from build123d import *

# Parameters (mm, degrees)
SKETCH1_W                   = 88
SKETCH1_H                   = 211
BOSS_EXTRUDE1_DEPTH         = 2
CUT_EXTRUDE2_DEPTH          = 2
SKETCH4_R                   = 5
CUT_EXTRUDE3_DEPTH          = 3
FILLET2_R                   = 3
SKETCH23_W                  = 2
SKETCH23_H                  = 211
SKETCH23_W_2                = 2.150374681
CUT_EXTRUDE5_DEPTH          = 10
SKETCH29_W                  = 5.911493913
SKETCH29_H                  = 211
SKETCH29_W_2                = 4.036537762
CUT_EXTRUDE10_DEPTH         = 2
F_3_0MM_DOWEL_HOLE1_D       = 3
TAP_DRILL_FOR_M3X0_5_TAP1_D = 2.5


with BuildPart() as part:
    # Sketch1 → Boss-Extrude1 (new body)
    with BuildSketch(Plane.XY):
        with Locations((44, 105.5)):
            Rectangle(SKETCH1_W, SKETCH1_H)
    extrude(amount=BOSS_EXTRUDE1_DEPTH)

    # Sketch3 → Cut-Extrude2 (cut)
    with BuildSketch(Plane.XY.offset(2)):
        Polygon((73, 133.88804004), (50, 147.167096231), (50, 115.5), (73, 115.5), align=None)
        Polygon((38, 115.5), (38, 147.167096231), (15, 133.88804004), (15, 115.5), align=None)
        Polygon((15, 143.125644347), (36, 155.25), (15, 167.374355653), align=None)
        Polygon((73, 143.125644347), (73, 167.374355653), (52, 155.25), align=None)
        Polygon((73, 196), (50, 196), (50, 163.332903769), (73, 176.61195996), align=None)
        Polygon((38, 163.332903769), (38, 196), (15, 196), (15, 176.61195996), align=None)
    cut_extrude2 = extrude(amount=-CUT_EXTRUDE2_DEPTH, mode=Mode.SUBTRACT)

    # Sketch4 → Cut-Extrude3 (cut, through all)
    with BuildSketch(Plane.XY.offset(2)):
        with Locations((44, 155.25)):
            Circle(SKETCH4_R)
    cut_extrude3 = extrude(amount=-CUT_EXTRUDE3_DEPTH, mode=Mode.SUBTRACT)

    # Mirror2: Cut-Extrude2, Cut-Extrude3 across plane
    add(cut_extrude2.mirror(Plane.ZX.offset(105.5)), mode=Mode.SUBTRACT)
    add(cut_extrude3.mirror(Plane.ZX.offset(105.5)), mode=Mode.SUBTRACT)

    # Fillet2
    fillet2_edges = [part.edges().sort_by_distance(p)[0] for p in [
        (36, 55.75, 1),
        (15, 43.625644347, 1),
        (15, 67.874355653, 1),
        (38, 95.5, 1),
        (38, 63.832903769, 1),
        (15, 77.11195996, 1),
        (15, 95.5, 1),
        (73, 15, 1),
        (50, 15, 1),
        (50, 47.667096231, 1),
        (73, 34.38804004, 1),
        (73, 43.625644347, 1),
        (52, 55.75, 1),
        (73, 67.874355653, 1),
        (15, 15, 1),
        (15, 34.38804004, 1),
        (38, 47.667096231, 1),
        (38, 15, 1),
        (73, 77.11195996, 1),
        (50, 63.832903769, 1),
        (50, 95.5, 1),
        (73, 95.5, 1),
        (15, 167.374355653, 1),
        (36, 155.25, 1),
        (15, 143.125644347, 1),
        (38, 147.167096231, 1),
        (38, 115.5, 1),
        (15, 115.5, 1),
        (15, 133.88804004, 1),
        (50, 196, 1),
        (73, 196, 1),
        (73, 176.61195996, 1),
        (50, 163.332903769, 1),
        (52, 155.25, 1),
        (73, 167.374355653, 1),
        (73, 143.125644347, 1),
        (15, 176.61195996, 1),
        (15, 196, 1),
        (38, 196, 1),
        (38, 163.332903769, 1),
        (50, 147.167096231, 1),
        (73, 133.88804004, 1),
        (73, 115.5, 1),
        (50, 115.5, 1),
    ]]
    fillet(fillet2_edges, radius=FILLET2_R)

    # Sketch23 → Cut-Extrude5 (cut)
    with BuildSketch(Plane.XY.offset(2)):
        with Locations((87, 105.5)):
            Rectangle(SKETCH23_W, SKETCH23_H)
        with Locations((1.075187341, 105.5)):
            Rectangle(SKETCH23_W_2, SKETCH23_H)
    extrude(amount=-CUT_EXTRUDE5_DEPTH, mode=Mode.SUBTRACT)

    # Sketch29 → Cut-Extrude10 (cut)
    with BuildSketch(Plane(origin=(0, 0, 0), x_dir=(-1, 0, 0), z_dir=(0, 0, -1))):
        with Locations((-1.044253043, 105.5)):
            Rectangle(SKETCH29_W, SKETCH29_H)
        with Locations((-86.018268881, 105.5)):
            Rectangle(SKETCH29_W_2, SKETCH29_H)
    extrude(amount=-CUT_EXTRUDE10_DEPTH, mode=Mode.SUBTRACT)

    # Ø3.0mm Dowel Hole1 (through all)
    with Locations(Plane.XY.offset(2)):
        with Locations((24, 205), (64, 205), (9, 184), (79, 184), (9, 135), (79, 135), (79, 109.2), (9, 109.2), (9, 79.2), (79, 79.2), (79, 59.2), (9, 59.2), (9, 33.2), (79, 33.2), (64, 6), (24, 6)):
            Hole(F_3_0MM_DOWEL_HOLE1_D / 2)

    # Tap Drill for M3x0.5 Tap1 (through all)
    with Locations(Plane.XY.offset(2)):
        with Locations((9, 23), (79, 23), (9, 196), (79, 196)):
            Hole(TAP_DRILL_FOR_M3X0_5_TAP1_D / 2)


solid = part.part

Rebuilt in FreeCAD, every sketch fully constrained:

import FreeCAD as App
import Part
import Sketcher
from FreeCAD import Vector
Q = App.Units.Quantity


def edges_at(feature, points):
    """Names of the edges that pass closest to the given points."""
    edges = feature.Shape.Edges
    near = lambda p: min(range(len(edges)), key=lambda i: edges[i].distToShape(Part.Vertex(*p))[0])
    return sorted({f"Edge{near(p) + 1}" for p in points})

doc = App.newDocument("Part")
body = doc.addObject("PartDesign::Body", "Body")

# Sketch on XY plane
sketch1 = body.newObject("Sketcher::SketchObject", "Sketch")
sketch1.AttachmentSupport = (doc.getObject("XY_Plane"), [""])
sketch1.MapMode = "FlatFace"
sketch1.addGeometry(Part.LineSegment(Vector(0, 211, 0), Vector(0, 0, 0)), False)
sketch1.addGeometry(Part.LineSegment(Vector(0, 0, 0), Vector(88, 0, 0)), False)
sketch1.addGeometry(Part.LineSegment(Vector(88, 0, 0), Vector(88, 211, 0)), False)
sketch1.addGeometry(Part.LineSegment(Vector(88, 211, 0), Vector(0, 211, 0)), False)
sketch1.addConstraint(Sketcher.Constraint("Coincident", 0, 2, 1, 1))
sketch1.addConstraint(Sketcher.Constraint("Coincident", 1, 2, 2, 1))
sketch1.addConstraint(Sketcher.Constraint("Coincident", 2, 2, 3, 1))
sketch1.addConstraint(Sketcher.Constraint("Coincident", 3, 2, 0, 1))
sketch1.addConstraint(Sketcher.Constraint("Vertical", 0))
sketch1.addConstraint(Sketcher.Constraint("Horizontal", 1))
sketch1.addConstraint(Sketcher.Constraint("Vertical", 2))
sketch1.addConstraint(Sketcher.Constraint("Horizontal", 3))
sketch1.addConstraint(Sketcher.Constraint("Coincident", 0, 2, -1, 1))
sketch1.addConstraint(Sketcher.Constraint("DistanceX", 1, 1, 1, 2, Q("88 mm")))
sketch1.addConstraint(Sketcher.Constraint("DistanceY", 0, 2, 0, 1, Q("211 mm")))
pad1 = body.newObject("PartDesign::Pad", "Pad")
pad1.Profile = sketch1
pad1.Length = 2

# Sketch on XY plane
sketch2 = body.newObject("Sketcher::SketchObject", "Sketch001")
sketch2.AttachmentSupport = (doc.getObject("XY_Plane"), [""])
sketch2.MapMode = "FlatFace"
sketch2.AttachmentOffset = App.Placement(Vector(0, 0, 2), App.Rotation())
sketch2.addGeometry(Part.LineSegment(Vector(73, 133.88804, 0), Vector(50, 147.167096, 0)), False)
sketch2.addGeometry(Part.LineSegment(Vector(50, 147.167096, 0), Vector(50, 115.5, 0)), False)
sketch2.addGeometry(Part.LineSegment(Vector(50, 115.5, 0), Vector(73, 115.5, 0)), False)
sketch2.addGeometry(Part.LineSegment(Vector(73, 115.5, 0), Vector(73, 133.88804, 0)), False)
sketch2.addGeometry(Part.LineSegment(Vector(38, 115.5, 0), Vector(38, 147.167096, 0)), False)
sketch2.addGeometry(Part.LineSegment(Vector(38, 147.167096, 0), Vector(15, 133.88804, 0)), False)
sketch2.addGeometry(Part.LineSegment(Vector(15, 133.88804, 0), Vector(15, 115.5, 0)), False)
sketch2.addGeometry(Part.LineSegment(Vector(15, 115.5, 0), Vector(38, 115.5, 0)), False)
sketch2.addGeometry(Part.LineSegment(Vector(15, 143.125644, 0), Vector(36, 155.25, 0)), False)
sketch2.addGeometry(Part.LineSegment(Vector(36, 155.25, 0), Vector(15, 167.374356, 0)), False)
sketch2.addGeometry(Part.LineSegment(Vector(15, 167.374356, 0), Vector(15, 143.125644, 0)), False)
sketch2.addGeometry(Part.LineSegment(Vector(73, 143.125644, 0), Vector(73, 167.374356, 0)), False)
sketch2.addGeometry(Part.LineSegment(Vector(73, 167.374356, 0), Vector(52, 155.25, 0)), False)
sketch2.addGeometry(Part.LineSegment(Vector(52, 155.25, 0), Vector(73, 143.125644, 0)), False)
sketch2.addGeometry(Part.LineSegment(Vector(73, 196, 0), Vector(50, 196, 0)), False)
sketch2.addGeometry(Part.LineSegment(Vector(50, 196, 0), Vector(50, 163.332904, 0)), False)
sketch2.addGeometry(Part.LineSegment(Vector(50, 163.332904, 0), Vector(73, 176.61196, 0)), False)
sketch2.addGeometry(Part.LineSegment(Vector(73, 176.61196, 0), Vector(73, 196, 0)), False)
sketch2.addGeometry(Part.LineSegment(Vector(38, 163.332904, 0), Vector(38, 196, 0)), False)
sketch2.addGeometry(Part.LineSegment(Vector(38, 196, 0), Vector(15, 196, 0)), False)
sketch2.addGeometry(Part.LineSegment(Vector(15, 196, 0), Vector(15, 176.61196, 0)), False)
sketch2.addGeometry(Part.LineSegment(Vector(15, 176.61196, 0), Vector(38, 163.332904, 0)), False)
sketch2.addConstraint(Sketcher.Constraint("Coincident", 0, 2, 1, 1))
sketch2.addConstraint(Sketcher.Constraint("Coincident", 1, 2, 2, 1))
sketch2.addConstraint(Sketcher.Constraint("Coincident", 2, 2, 3, 1))
sketch2.addConstraint(Sketcher.Constraint("Coincident", 3, 2, 0, 1))
sketch2.addConstraint(Sketcher.Constraint("Coincident", 4, 2, 5, 1))
sketch2.addConstraint(Sketcher.Constraint("Coincident", 5, 2, 6, 1))
sketch2.addConstraint(Sketcher.Constraint("Coincident", 6, 2, 7, 1))
sketch2.addConstraint(Sketcher.Constraint("Coincident", 7, 2, 4, 1))
sketch2.addConstraint(Sketcher.Constraint("Coincident", 8, 2, 9, 1))
sketch2.addConstraint(Sketcher.Constraint("Coincident", 9, 2, 10, 1))
sketch2.addConstraint(Sketcher.Constraint("Coincident", 10, 2, 8, 1))
sketch2.addConstraint(Sketcher.Constraint("Coincident", 11, 2, 12, 1))
sketch2.addConstraint(Sketcher.Constraint("Coincident", 12, 2, 13, 1))
sketch2.addConstraint(Sketcher.Constraint("Coincident", 13, 2, 11, 1))
sketch2.addConstraint(Sketcher.Constraint("Coincident", 14, 2, 15, 1))
sketch2.addConstraint(Sketcher.Constraint("Coincident", 15, 2, 16, 1))
sketch2.addConstraint(Sketcher.Constraint("Coincident", 16, 2, 17, 1))
sketch2.addConstraint(Sketcher.Constraint("Coincident", 17, 2, 14, 1))
sketch2.addConstraint(Sketcher.Constraint("Coincident", 18, 2, 19, 1))
sketch2.addConstraint(Sketcher.Constraint("Coincident", 19, 2, 20, 1))
sketch2.addConstraint(Sketcher.Constraint("Coincident", 20, 2, 21, 1))
sketch2.addConstraint(Sketcher.Constraint("Coincident", 21, 2, 18, 1))
sketch2.addConstraint(Sketcher.Constraint("Vertical", 1))
sketch2.addConstraint(Sketcher.Constraint("Horizontal", 2))
sketch2.addConstraint(Sketcher.Constraint("Vertical", 3))
sketch2.addConstraint(Sketcher.Constraint("Vertical", 4))
sketch2.addConstraint(Sketcher.Constraint("Vertical", 6))
sketch2.addConstraint(Sketcher.Constraint("Horizontal", 7))
sketch2.addConstraint(Sketcher.Constraint("Vertical", 10))
sketch2.addConstraint(Sketcher.Constraint("Vertical", 11))
sketch2.addConstraint(Sketcher.Constraint("Horizontal", 14))
sketch2.addConstraint(Sketcher.Constraint("Vertical", 15))
sketch2.addConstraint(Sketcher.Constraint("Vertical", 17))
sketch2.addConstraint(Sketcher.Constraint("Vertical", 18))
sketch2.addConstraint(Sketcher.Constraint("Horizontal", 19))
sketch2.addConstraint(Sketcher.Constraint("Vertical", 20))
sketch2.addConstraint(Sketcher.Constraint("Parallel", 5, 8))
sketch2.addConstraint(Sketcher.Constraint("Parallel", 0, 9))
sketch2.addConstraint(Sketcher.Constraint("Parallel", 8, 12))
sketch2.addConstraint(Sketcher.Constraint("Parallel", 9, 13))
sketch2.addConstraint(Sketcher.Constraint("Parallel", 12, 16))
sketch2.addConstraint(Sketcher.Constraint("Parallel", 13, 21))
sketch2.addConstraint(Sketcher.Constraint("Horizontal", 0, 2, 4, 2))
sketch2.addConstraint(Sketcher.Constraint("Horizontal", 3, 2, 5, 2))
sketch2.addConstraint(Sketcher.Constraint("Horizontal", 2, 2, 6, 2))
sketch2.addConstraint(Sketcher.Constraint("Horizontal", 9, 2, 11, 2))
sketch2.addConstraint(Sketcher.Constraint("Horizontal", 8, 2, 12, 2))
sketch2.addConstraint(Sketcher.Constraint("Horizontal", 10, 2, 13, 2))
sketch2.addConstraint(Sketcher.Constraint("Horizontal", 17, 2, 18, 2))
sketch2.addConstraint(Sketcher.Constraint("Horizontal", 16, 2, 20, 2))
sketch2.addConstraint(Sketcher.Constraint("Horizontal", 15, 2, 21, 2))
sketch2.addConstraint(Sketcher.Constraint("Vertical", 6, 2, 9, 2))
sketch2.addConstraint(Sketcher.Constraint("Vertical", 3, 2, 11, 2))
sketch2.addConstraint(Sketcher.Constraint("Vertical", 1, 2, 14, 2))
sketch2.addConstraint(Sketcher.Constraint("Vertical", 13, 2, 16, 2))
sketch2.addConstraint(Sketcher.Constraint("Vertical", 7, 2, 18, 2))
sketch2.addConstraint(Sketcher.Constraint("DistanceX", 2, 1, 2, 2, Q("23 mm")))
sketch2.addConstraint(Sketcher.Constraint("Angle", 0, Q("150 deg")))
sketch2.addConstraint(Sketcher.Constraint("DistanceX", -1, 1, 0, 2, Q("50 mm")))
sketch2.addConstraint(Sketcher.Constraint("DistanceX", -1, 1, 4, 2, Q("38 mm")))
sketch2.addConstraint(Sketcher.Constraint("DistanceX", -1, 1, 8, 2, Q("36 mm")))
sketch2.addConstraint(Sketcher.Constraint("DistanceY", -1, 1, 14, 2, Q("196 mm")))
sketch2.addConstraint(Sketcher.Constraint("DistanceY", -1, 1, 1, 2, Q("115.5 mm")))
sketch2.addConstraint(Sketcher.Constraint("DistanceY", -1, 1, 8, 2, Q("155.25 mm")))
sketch2.addConstraint(Sketcher.Constraint("DistanceY", 3, 1, 3, 2, Q("18.38804 mm")))
sketch2.addConstraint(Sketcher.Constraint("DistanceY", 17, 1, 17, 2, Q("19.38804 mm")))
pocket1 = body.newObject("PartDesign::Pocket", "Pocket")
pocket1.Profile = sketch2
pocket1.Length = 2

# Sketch on XY plane
sketch3 = body.newObject("Sketcher::SketchObject", "Sketch002")
sketch3.AttachmentSupport = (doc.getObject("XY_Plane"), [""])
sketch3.MapMode = "FlatFace"
sketch3.AttachmentOffset = App.Placement(Vector(0, 0, 2), App.Rotation())
sketch3.addGeometry(Part.Circle(Vector(44, 155.25, 0), Vector(0, 0, 1), 5), False)
sketch3.addConstraint(Sketcher.Constraint("Diameter", 0, Q("10 mm")))
sketch3.addConstraint(Sketcher.Constraint("DistanceX", -1, 1, 0, 3, Q("44 mm")))
sketch3.addConstraint(Sketcher.Constraint("DistanceY", -1, 1, 0, 3, Q("155.25 mm")))
pocket2 = body.newObject("PartDesign::Pocket", "Pocket001")
pocket2.Profile = sketch3
pocket2.Type = "ThroughAll"
doc.recompute()

datumplane = body.newObject("PartDesign::Plane", "DatumPlane")
datumplane.AttachmentSupport = (doc.getObject("XZ_Plane"), [""])
datumplane.MapMode = "FlatFace"
datumplane.AttachmentOffset = App.Placement(Vector(0, 0, -105.5), App.Rotation())
mirrored = body.newObject("PartDesign::Mirrored", "Mirrored")
mirrored.Originals = [pocket1, pocket2]
mirrored.MirrorPlane = (datumplane, [""])
body.Tip = mirrored
doc.recompute()

fillet = body.newObject("PartDesign::Fillet", "Fillet")
fillet.Base = (mirrored, edges_at(mirrored, [
    (36, 55.75, 1),
    (15, 43.626, 1),
    (15, 67.874, 1),
    (38, 95.5, 1),
    (38, 63.833, 1),
    (15, 77.112, 1),
    (15, 95.5, 1),
    (73, 15, 1),
    (50, 15, 1),
    (50, 47.667, 1),
    (73, 34.388, 1),
    (73, 43.626, 1),
    (52, 55.75, 1),
    (73, 67.874, 1),
    (15, 15, 1),
    (15, 34.388, 1),
    (38, 47.667, 1),
    (38, 15, 1),
    (73, 77.112, 1),
    (50, 63.833, 1),
    (50, 95.5, 1),
    (73, 95.5, 1),
    (15, 167.374, 1),
    (36, 155.25, 1),
    (15, 143.126, 1),
    (38, 147.167, 1),
    (38, 115.5, 1),
    (15, 115.5, 1),
    (15, 133.888, 1),
    (50, 196, 1),
    (73, 196, 1),
    (73, 176.612, 1),
    (50, 163.333, 1),
    (52, 155.25, 1),
    (73, 167.374, 1),
    (73, 143.126, 1),
    (15, 176.612, 1),
    (15, 196, 1),
    (38, 196, 1),
    (38, 163.333, 1),
    (50, 147.167, 1),
    (73, 133.888, 1),
    (73, 115.5, 1),
    (50, 115.5, 1),
]))
fillet.Radius = 3

# Sketch on XY plane
sketch4 = body.newObject("Sketcher::SketchObject", "Sketch003")
sketch4.AttachmentSupport = (doc.getObject("XY_Plane"), [""])
sketch4.MapMode = "FlatFace"
sketch4.AttachmentOffset = App.Placement(Vector(0, 0, 2), App.Rotation())
sketch4.addGeometry(Part.LineSegment(Vector(86, 211, 0), Vector(86, 0, 0)), False)
sketch4.addGeometry(Part.LineSegment(Vector(86, 0, 0), Vector(88, 0, 0)), False)
sketch4.addGeometry(Part.LineSegment(Vector(88, 0, 0), Vector(88, 211, 0)), False)
sketch4.addGeometry(Part.LineSegment(Vector(88, 211, 0), Vector(86, 211, 0)), False)
sketch4.addGeometry(Part.LineSegment(Vector(0, 211, 0), Vector(0, 0, 0)), False)
sketch4.addGeometry(Part.LineSegment(Vector(0, 0, 0), Vector(2.150375, 0, 0)), False)
sketch4.addGeometry(Part.LineSegment(Vector(2.150375, 0, 0), Vector(2.150375, 211, 0)), False)
sketch4.addGeometry(Part.LineSegment(Vector(2.150375, 211, 0), Vector(0, 211, 0)), False)
sketch4.addConstraint(Sketcher.Constraint("Coincident", 0, 2, 1, 1))
sketch4.addConstraint(Sketcher.Constraint("Coincident", 1, 2, 2, 1))
sketch4.addConstraint(Sketcher.Constraint("Coincident", 2, 2, 3, 1))
sketch4.addConstraint(Sketcher.Constraint("Coincident", 3, 2, 0, 1))
sketch4.addConstraint(Sketcher.Constraint("Coincident", 4, 2, 5, 1))
sketch4.addConstraint(Sketcher.Constraint("Coincident", 5, 2, 6, 1))
sketch4.addConstraint(Sketcher.Constraint("Coincident", 6, 2, 7, 1))
sketch4.addConstraint(Sketcher.Constraint("Coincident", 7, 2, 4, 1))
sketch4.addConstraint(Sketcher.Constraint("Vertical", 0))
sketch4.addConstraint(Sketcher.Constraint("Horizontal", 1))
sketch4.addConstraint(Sketcher.Constraint("Vertical", 2))
sketch4.addConstraint(Sketcher.Constraint("Horizontal", 3))
sketch4.addConstraint(Sketcher.Constraint("Vertical", 4))
sketch4.addConstraint(Sketcher.Constraint("Horizontal", 5))
sketch4.addConstraint(Sketcher.Constraint("Vertical", 6))
sketch4.addConstraint(Sketcher.Constraint("Horizontal", 7))
sketch4.addConstraint(Sketcher.Constraint("Coincident", 4, 2, -1, 1))
sketch4.addConstraint(Sketcher.Constraint("PointOnObject", 0, 2, -1))
sketch4.addConstraint(Sketcher.Constraint("Horizontal", 3, 2, 6, 2))
sketch4.addConstraint(Sketcher.Constraint("DistanceX", 1, 1, 1, 2, Q("2 mm")))
sketch4.addConstraint(Sketcher.Constraint("DistanceY", 0, 2, 0, 1, Q("211 mm")))
sketch4.addConstraint(Sketcher.Constraint("DistanceX", -1, 1, 0, 2, Q("86 mm")))
sketch4.addConstraint(Sketcher.Constraint("DistanceX", 5, 1, 5, 2, Q("2.150375 mm")))
pocket3 = body.newObject("PartDesign::Pocket", "Pocket002")
pocket3.Profile = sketch4
pocket3.Length = 10

# Sketch on XY plane
sketch5 = body.newObject("Sketcher::SketchObject", "Sketch004")
sketch5.AttachmentSupport = (doc.getObject("XY_Plane"), [""])
sketch5.MapMode = "FlatFace"
sketch5.addGeometry(Part.LineSegment(Vector(4, 211, 0), Vector(4, 0, 0)), False)
sketch5.addGeometry(Part.LineSegment(Vector(4, 0, 0), Vector(-1.911494, 0, 0)), False)
sketch5.addGeometry(Part.LineSegment(Vector(-1.911494, 0, 0), Vector(-1.911494, 211, 0)), False)
sketch5.addGeometry(Part.LineSegment(Vector(-1.911494, 211, 0), Vector(4, 211, 0)), False)
sketch5.addGeometry(Part.LineSegment(Vector(88.036538, 211, 0), Vector(88.036538, 0, 0)), False)
sketch5.addGeometry(Part.LineSegment(Vector(88.036538, 0, 0), Vector(84, 0, 0)), False)
sketch5.addGeometry(Part.LineSegment(Vector(84, 0, 0), Vector(84, 211, 0)), False)
sketch5.addGeometry(Part.LineSegment(Vector(84, 211, 0), Vector(88.036538, 211, 0)), False)
sketch5.addConstraint(Sketcher.Constraint("Coincident", 0, 2, 1, 1))
sketch5.addConstraint(Sketcher.Constraint("Coincident", 1, 2, 2, 1))
sketch5.addConstraint(Sketcher.Constraint("Coincident", 2, 2, 3, 1))
sketch5.addConstraint(Sketcher.Constraint("Coincident", 3, 2, 0, 1))
sketch5.addConstraint(Sketcher.Constraint("Coincident", 4, 2, 5, 1))
sketch5.addConstraint(Sketcher.Constraint("Coincident", 5, 2, 6, 1))
sketch5.addConstraint(Sketcher.Constraint("Coincident", 6, 2, 7, 1))
sketch5.addConstraint(Sketcher.Constraint("Coincident", 7, 2, 4, 1))
sketch5.addConstraint(Sketcher.Constraint("Vertical", 0))
sketch5.addConstraint(Sketcher.Constraint("Horizontal", 1))
sketch5.addConstraint(Sketcher.Constraint("Vertical", 2))
sketch5.addConstraint(Sketcher.Constraint("Horizontal", 3))
sketch5.addConstraint(Sketcher.Constraint("Vertical", 4))
sketch5.addConstraint(Sketcher.Constraint("Horizontal", 5))
sketch5.addConstraint(Sketcher.Constraint("Vertical", 6))
sketch5.addConstraint(Sketcher.Constraint("Horizontal", 7))
sketch5.addConstraint(Sketcher.Constraint("PointOnObject", 0, 2, -1))
sketch5.addConstraint(Sketcher.Constraint("PointOnObject", 4, 2, -1))
sketch5.addConstraint(Sketcher.Constraint("Horizontal", 3, 2, 6, 2))
sketch5.addConstraint(Sketcher.Constraint("DistanceY", 0, 2, 0, 1, Q("211 mm")))
sketch5.addConstraint(Sketcher.Constraint("DistanceX", -1, 1, 0, 2, Q("4 mm")))
sketch5.addConstraint(Sketcher.Constraint("DistanceX", -1, 1, 5, 2, Q("84 mm")))
sketch5.addConstraint(Sketcher.Constraint("DistanceX", 1, 2, 1, 1, Q("5.911494 mm")))
sketch5.addConstraint(Sketcher.Constraint("DistanceX", 5, 2, 5, 1, Q("4.036538 mm")))
pocket4 = body.newObject("PartDesign::Pocket", "Pocket003")
pocket4.Profile = sketch5
pocket4.Length = 2
pocket4.Reversed = True

# Sketch on XY plane
sketch6 = body.newObject("Sketcher::SketchObject", "Sketch005")
sketch6.AttachmentSupport = (doc.getObject("XY_Plane"), [""])
sketch6.MapMode = "FlatFace"
sketch6.AttachmentOffset = App.Placement(Vector(0, 0, 2), App.Rotation())
sketch6.addGeometry(Part.Circle(Vector(24, 205, 0), Vector(0, 0, 1), 1.5), False)
sketch6.addGeometry(Part.Circle(Vector(64, 205, 0), Vector(0, 0, 1), 1.5), False)
sketch6.addGeometry(Part.Circle(Vector(9, 184, 0), Vector(0, 0, 1), 1.5), False)
sketch6.addGeometry(Part.Circle(Vector(79, 184, 0), Vector(0, 0, 1), 1.5), False)
sketch6.addGeometry(Part.Circle(Vector(9, 135, 0), Vector(0, 0, 1), 1.5), False)
sketch6.addGeometry(Part.Circle(Vector(79, 135, 0), Vector(0, 0, 1), 1.5), False)
sketch6.addGeometry(Part.Circle(Vector(79, 109.2, 0), Vector(0, 0, 1), 1.5), False)
sketch6.addGeometry(Part.Circle(Vector(9, 109.2, 0), Vector(0, 0, 1), 1.5), False)
sketch6.addGeometry(Part.Circle(Vector(9, 79.2, 0), Vector(0, 0, 1), 1.5), False)
sketch6.addGeometry(Part.Circle(Vector(79, 79.2, 0), Vector(0, 0, 1), 1.5), False)
sketch6.addGeometry(Part.Circle(Vector(79, 59.2, 0), Vector(0, 0, 1), 1.5), False)
sketch6.addGeometry(Part.Circle(Vector(9, 59.2, 0), Vector(0, 0, 1), 1.5), False)
sketch6.addGeometry(Part.Circle(Vector(9, 33.2, 0), Vector(0, 0, 1), 1.5), False)
sketch6.addGeometry(Part.Circle(Vector(79, 33.2, 0), Vector(0, 0, 1), 1.5), False)
sketch6.addGeometry(Part.Circle(Vector(64, 6, 0), Vector(0, 0, 1), 1.5), False)
sketch6.addGeometry(Part.Circle(Vector(24, 6, 0), Vector(0, 0, 1), 1.5), False)
sketch6.addConstraint(Sketcher.Constraint("Equal", 0, 1))
sketch6.addConstraint(Sketcher.Constraint("Equal", 1, 2))
sketch6.addConstraint(Sketcher.Constraint("Equal", 2, 3))
sketch6.addConstraint(Sketcher.Constraint("Equal", 3, 4))
sketch6.addConstraint(Sketcher.Constraint("Equal", 4, 5))
sketch6.addConstraint(Sketcher.Constraint("Equal", 5, 6))
sketch6.addConstraint(Sketcher.Constraint("Equal", 6, 7))
sketch6.addConstraint(Sketcher.Constraint("Equal", 7, 8))
sketch6.addConstraint(Sketcher.Constraint("Equal", 8, 9))
sketch6.addConstraint(Sketcher.Constraint("Equal", 9, 10))
sketch6.addConstraint(Sketcher.Constraint("Equal", 10, 11))
sketch6.addConstraint(Sketcher.Constraint("Equal", 11, 12))
sketch6.addConstraint(Sketcher.Constraint("Equal", 12, 13))
sketch6.addConstraint(Sketcher.Constraint("Equal", 13, 14))
sketch6.addConstraint(Sketcher.Constraint("Equal", 14, 15))
sketch6.addConstraint(Sketcher.Constraint("Horizontal", 0, 3, 1, 3))
sketch6.addConstraint(Sketcher.Constraint("Horizontal", 2, 3, 3, 3))
sketch6.addConstraint(Sketcher.Constraint("Horizontal", 4, 3, 5, 3))
sketch6.addConstraint(Sketcher.Constraint("Horizontal", 6, 3, 7, 3))
sketch6.addConstraint(Sketcher.Constraint("Horizontal", 8, 3, 9, 3))
sketch6.addConstraint(Sketcher.Constraint("Horizontal", 10, 3, 11, 3))
sketch6.addConstraint(Sketcher.Constraint("Horizontal", 12, 3, 13, 3))
sketch6.addConstraint(Sketcher.Constraint("Horizontal", 14, 3, 15, 3))
sketch6.addConstraint(Sketcher.Constraint("Vertical", 2, 3, 4, 3))
sketch6.addConstraint(Sketcher.Constraint("Vertical", 3, 3, 5, 3))
sketch6.addConstraint(Sketcher.Constraint("Vertical", 5, 3, 6, 3))
sketch6.addConstraint(Sketcher.Constraint("Vertical", 4, 3, 7, 3))
sketch6.addConstraint(Sketcher.Constraint("Vertical", 7, 3, 8, 3))
sketch6.addConstraint(Sketcher.Constraint("Vertical", 6, 3, 9, 3))
sketch6.addConstraint(Sketcher.Constraint("Vertical", 9, 3, 10, 3))
sketch6.addConstraint(Sketcher.Constraint("Vertical", 8, 3, 11, 3))
sketch6.addConstraint(Sketcher.Constraint("Vertical", 11, 3, 12, 3))
sketch6.addConstraint(Sketcher.Constraint("Vertical", 10, 3, 13, 3))
sketch6.addConstraint(Sketcher.Constraint("Vertical", 1, 3, 14, 3))
sketch6.addConstraint(Sketcher.Constraint("Vertical", 0, 3, 15, 3))
sketch6.addConstraint(Sketcher.Constraint("Diameter", 0, Q("3 mm")))
sketch6.addConstraint(Sketcher.Constraint("DistanceX", -1, 1, 0, 3, Q("24 mm")))
sketch6.addConstraint(Sketcher.Constraint("DistanceY", -1, 1, 0, 3, Q("205 mm")))
sketch6.addConstraint(Sketcher.Constraint("DistanceX", -1, 1, 1, 3, Q("64 mm")))
sketch6.addConstraint(Sketcher.Constraint("DistanceX", -1, 1, 2, 3, Q("9 mm")))
sketch6.addConstraint(Sketcher.Constraint("DistanceY", -1, 1, 2, 3, Q("184 mm")))
sketch6.addConstraint(Sketcher.Constraint("DistanceX", -1, 1, 3, 3, Q("79 mm")))
sketch6.addConstraint(Sketcher.Constraint("DistanceY", -1, 1, 4, 3, Q("135 mm")))
sketch6.addConstraint(Sketcher.Constraint("DistanceY", -1, 1, 14, 3, Q("6 mm")))
sketch6.addConstraint(Sketcher.Constraint("DistanceY", 8, 3, 7, 3, Q("30 mm")))
sketch6.addConstraint(Sketcher.Constraint("DistanceY", 10, 3, 9, 3, Q("20 mm")))
sketch6.addConstraint(Sketcher.Constraint("DistanceY", 12, 3, 11, 3, Q("26 mm")))
sketch6.addConstraint(Sketcher.Constraint("DistanceY", -1, 1, 6, 3, Q("109.2 mm")))
doc.recompute()
hole = body.newObject("PartDesign::Hole", "Hole")
hole.Profile = sketch6
hole.ThreadType = "None"
hole.Diameter = 3
hole.DepthType = "ThroughAll"

# Sketch on XY plane
sketch7 = body.newObject("Sketcher::SketchObject", "Sketch006")
sketch7.AttachmentSupport = (doc.getObject("XY_Plane"), [""])
sketch7.MapMode = "FlatFace"
sketch7.AttachmentOffset = App.Placement(Vector(0, 0, 2), App.Rotation())
sketch7.addGeometry(Part.Circle(Vector(9, 23, 0), Vector(0, 0, 1), 1.25), False)
sketch7.addGeometry(Part.Circle(Vector(79, 23, 0), Vector(0, 0, 1), 1.25), False)
sketch7.addGeometry(Part.Circle(Vector(9, 196, 0), Vector(0, 0, 1), 1.25), False)
sketch7.addGeometry(Part.Circle(Vector(79, 196, 0), Vector(0, 0, 1), 1.25), False)
sketch7.addConstraint(Sketcher.Constraint("Equal", 0, 1))
sketch7.addConstraint(Sketcher.Constraint("Equal", 1, 2))
sketch7.addConstraint(Sketcher.Constraint("Equal", 2, 3))
sketch7.addConstraint(Sketcher.Constraint("Horizontal", 0, 3, 1, 3))
sketch7.addConstraint(Sketcher.Constraint("Horizontal", 2, 3, 3, 3))
sketch7.addConstraint(Sketcher.Constraint("Vertical", 0, 3, 2, 3))
sketch7.addConstraint(Sketcher.Constraint("Vertical", 1, 3, 3, 3))
sketch7.addConstraint(Sketcher.Constraint("Diameter", 0, Q("2.5 mm")))
sketch7.addConstraint(Sketcher.Constraint("DistanceX", -1, 1, 0, 3, Q("9 mm")))
sketch7.addConstraint(Sketcher.Constraint("DistanceY", -1, 1, 0, 3, Q("23 mm")))
sketch7.addConstraint(Sketcher.Constraint("DistanceX", -1, 1, 1, 3, Q("79 mm")))
sketch7.addConstraint(Sketcher.Constraint("DistanceY", -1, 1, 2, 3, Q("196 mm")))
doc.recompute()
hole2 = body.newObject("PartDesign::Hole", "Hole001")
hole2.Profile = sketch7
hole2.ThreadType = "None"
hole2.Diameter = 2.5
hole2.DepthType = "ThroughAll"

doc.recompute()
